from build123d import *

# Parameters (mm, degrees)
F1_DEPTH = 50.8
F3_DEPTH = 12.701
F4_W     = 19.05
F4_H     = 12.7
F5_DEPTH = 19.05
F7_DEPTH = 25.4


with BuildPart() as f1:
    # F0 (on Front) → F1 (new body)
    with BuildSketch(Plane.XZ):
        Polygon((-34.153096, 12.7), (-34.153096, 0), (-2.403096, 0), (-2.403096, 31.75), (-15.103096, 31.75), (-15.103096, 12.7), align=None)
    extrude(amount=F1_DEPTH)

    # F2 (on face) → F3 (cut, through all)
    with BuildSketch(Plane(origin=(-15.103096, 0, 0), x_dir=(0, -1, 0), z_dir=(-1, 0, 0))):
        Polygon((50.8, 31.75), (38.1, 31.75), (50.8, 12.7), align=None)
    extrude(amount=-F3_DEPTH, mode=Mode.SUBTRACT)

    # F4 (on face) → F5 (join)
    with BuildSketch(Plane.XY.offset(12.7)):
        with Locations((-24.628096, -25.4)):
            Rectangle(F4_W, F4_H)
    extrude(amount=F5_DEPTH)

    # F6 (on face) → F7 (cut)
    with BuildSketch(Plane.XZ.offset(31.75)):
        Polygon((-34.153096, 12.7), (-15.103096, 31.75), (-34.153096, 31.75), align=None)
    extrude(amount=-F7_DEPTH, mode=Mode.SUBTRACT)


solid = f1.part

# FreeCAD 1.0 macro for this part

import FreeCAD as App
import Part
import Sketcher
Q = App.Units.Quantity

doc = App.newDocument("Part")
body = doc.addObject("PartDesign::Body", "Body")

sketch1 = body.newObject("Sketcher::SketchObject", "Sketch")
sketch1.AttachmentSupport = (doc.getObject("XZ_Plane"), [""])
sketch1.MapMode = "FlatFace"
sketch1.addGeometry([
    Part.LineSegment(App.Vector(-34, 13, 0), App.Vector(-34, 0, 0)),
    Part.LineSegment(App.Vector(-34, 0, 0), App.Vector(-2, 0, 0)),
    Part.LineSegment(App.Vector(-2, 0, 0), App.Vector(-2, 32, 0)),
    Part.LineSegment(App.Vector(-2, 32, 0), App.Vector(-15, 32, 0)),
    Part.LineSegment(App.Vector(-15, 32, 0), App.Vector(-15, 13, 0)),
    Part.LineSegment(App.Vector(-15, 13, 0), App.Vector(-34, 13, 0)),
], False)
sketch1.addConstraint([
    Sketcher.Constraint("Coincident", 0, 2, 1, 1),
    Sketcher.Constraint("Coincident", 1, 2, 2, 1),
    Sketcher.Constraint("Coincident", 2, 2, 3, 1),
    Sketcher.Constraint("Coincident", 3, 2, 4, 1),
    Sketcher.Constraint("Coincident", 4, 2, 5, 1),
    Sketcher.Constraint("Coincident", 5, 2, 0, 1),
    Sketcher.Constraint("Vertical", 0),
    Sketcher.Constraint("Horizontal", 1),
    Sketcher.Constraint("Vertical", 2),
    Sketcher.Constraint("Horizontal", 3),
    Sketcher.Constraint("Vertical", 4),
    Sketcher.Constraint("Horizontal", 5),
    Sketcher.Constraint("PointOnObject", 0, 2, -1),
    Sketcher.Constraint("Equal", 3, 0),
    Sketcher.Constraint("Equal", 1, 2),
    Sketcher.Constraint("DistanceX", 3, 2, 3, 1, Q("0.5 in")),
    Sketcher.Constraint("DistanceX", 1, 1, 1, 2, Q("1.25 in")),
    Sketcher.Constraint("DistanceX", 0, 2, -1, 1, 34.153096),
])
pad1 = body.newObject("PartDesign::Pad", "Pad")
pad1.Profile = sketch1
pad1.Length = Q("2 in")

sketch2 = body.newObject("Sketcher::SketchObject", "Sketch001")
sketch2.AttachmentSupport = (doc.getObject("YZ_Plane"), [""])
sketch2.MapMode = "FlatFace"
sketch2.AttachmentOffset = App.Placement(App.Vector(0, 0, -15.103096), App.Rotation())
sketch2.addGeometry([
    Part.LineSegment(App.Vector(-51, 32, 0), App.Vector(-38, 32, 0)),
    Part.LineSegment(App.Vector(-38, 32, 0), App.Vector(-51, 13, 0)),
    Part.LineSegment(App.Vector(-51, 13, 0), App.Vector(-51, 32, 0)),
], False)
sketch2.addConstraint([
    Sketcher.Constraint("Coincident", 0, 2, 1, 1),
    Sketcher.Constraint("Coincident", 1, 2, 2, 1),
    Sketcher.Constraint("Coincident", 2, 2, 0, 1),
    Sketcher.Constraint("Horizontal", 0),
    Sketcher.Constraint("Vertical", 2),
    Sketcher.Constraint("DistanceX", 0, 1, 0, 2, Q("0.5 in")),
    Sketcher.Constraint("DistanceX", 1, 2, -1, 1, Q("2 in")),
    Sketcher.Constraint("DistanceY", 2, 1, 2, 2, Q("0.75 in")),
    Sketcher.Constraint("DistanceY", -1, 1, 1, 2, Q("0.5 in")),
])
pocket1 = body.newObject("PartDesign::Pocket", "Pocket")
pocket1.Profile = sketch2
pocket1.Type = "ThroughAll"
pocket1.Reversed = True

sketch3 = body.newObject("Sketcher::SketchObject", "Sketch002")
sketch3.AttachmentSupport = (doc.getObject("XY_Plane"), [""])
sketch3.MapMode = "FlatFace"
sketch3.AttachmentOffset = App.Placement(App.Vector(0, 0, 0.5 * 25.4), App.Rotation())
sketch3.addGeometry([
    Part.LineSegment(App.Vector(-34, -19, 0), App.Vector(-34, -32, 0)),
    Part.LineSegment(App.Vector(-34, -32, 0), App.Vector(-15, -32, 0)),
    Part.LineSegment(App.Vector(-15, -32, 0), App.Vector(-15, -19, 0)),
    Part.LineSegment(App.Vector(-15, -19, 0), App.Vector(-34, -19, 0)),
], False)
sketch3.addConstraint([
    Sketcher.Constraint("Coincident", 0, 2, 1, 1),
    Sketcher.Constraint("Coincident", 1, 2, 2, 1),
    Sketcher.Constraint("Coincident", 2, 2, 3, 1),
    Sketcher.Constraint("Coincident", 3, 2, 0, 1),
    Sketcher.Constraint("Vertical", 0),
    Sketcher.Constraint("Horizontal", 1),
    Sketcher.Constraint("Vertical", 2),
    Sketcher.Constraint("Horizontal", 3),
    Sketcher.Constraint("DistanceY", 0, 2, 0, 1, Q("0.5 in")),
    Sketcher.Constraint("DistanceX", 1, 1, 1, 2, Q("0.75 in")),
    Sketcher.Constraint("DistanceY", 0, 2, -1, 1, Q("1.25 in")),
    Sketcher.Constraint("DistanceX", 0, 2, -1, 1, 34.153096),
])
pad2 = body.newObject("PartDesign::Pad", "Pad001")
pad2.Profile = sketch3
pad2.Length = Q("0.75 in")

sketch4 = body.newObject("Sketcher::SketchObject", "Sketch003")
sketch4.AttachmentSupport = (doc.getObject("XZ_Plane"), [""])
sketch4.MapMode = "FlatFace"
sketch4.AttachmentOffset = App.Placement(App.Vector(0, 0, 1.25 * 25.4), App.Rotation())
sketch4.addGeometry([
    Part.LineSegment(App.Vector(-34, 13, 0), App.Vector(-15, 32, 0)),
    Part.LineSegment(App.Vector(-15, 32, 0), App.Vector(-34, 32, 0)),
    Part.LineSegment(App.Vector(-34, 32, 0), App.Vector(-34, 13, 0)),
], False)
sketch4.addConstraint([
    Sketcher.Constraint("Coincident", 0, 2, 1, 1),
    Sketcher.Constraint("Coincident", 1, 2, 2, 1),
    Sketcher.Constraint("Coincident", 2, 2, 0, 1),
    Sketcher.Constraint("Horizontal", 1),
    Sketcher.Constraint("Vertical", 2),
    Sketcher.Constraint("Equal", 1, 2),
    Sketcher.Constraint("DistanceX", 1, 2, 1, 1, Q("0.75 in")),
    Sketcher.Constraint("DistanceY", -1, 1, 2, 2, Q("0.5 in")),
    Sketcher.Constraint("DistanceX", 0, 2, -1, 1, 15.103096),
])
pocket2 = body.newObject("PartDesign::Pocket", "Pocket001")
pocket2.Profile = sketch4
pocket2.Length = Q("1 in")

doc.recompute()
